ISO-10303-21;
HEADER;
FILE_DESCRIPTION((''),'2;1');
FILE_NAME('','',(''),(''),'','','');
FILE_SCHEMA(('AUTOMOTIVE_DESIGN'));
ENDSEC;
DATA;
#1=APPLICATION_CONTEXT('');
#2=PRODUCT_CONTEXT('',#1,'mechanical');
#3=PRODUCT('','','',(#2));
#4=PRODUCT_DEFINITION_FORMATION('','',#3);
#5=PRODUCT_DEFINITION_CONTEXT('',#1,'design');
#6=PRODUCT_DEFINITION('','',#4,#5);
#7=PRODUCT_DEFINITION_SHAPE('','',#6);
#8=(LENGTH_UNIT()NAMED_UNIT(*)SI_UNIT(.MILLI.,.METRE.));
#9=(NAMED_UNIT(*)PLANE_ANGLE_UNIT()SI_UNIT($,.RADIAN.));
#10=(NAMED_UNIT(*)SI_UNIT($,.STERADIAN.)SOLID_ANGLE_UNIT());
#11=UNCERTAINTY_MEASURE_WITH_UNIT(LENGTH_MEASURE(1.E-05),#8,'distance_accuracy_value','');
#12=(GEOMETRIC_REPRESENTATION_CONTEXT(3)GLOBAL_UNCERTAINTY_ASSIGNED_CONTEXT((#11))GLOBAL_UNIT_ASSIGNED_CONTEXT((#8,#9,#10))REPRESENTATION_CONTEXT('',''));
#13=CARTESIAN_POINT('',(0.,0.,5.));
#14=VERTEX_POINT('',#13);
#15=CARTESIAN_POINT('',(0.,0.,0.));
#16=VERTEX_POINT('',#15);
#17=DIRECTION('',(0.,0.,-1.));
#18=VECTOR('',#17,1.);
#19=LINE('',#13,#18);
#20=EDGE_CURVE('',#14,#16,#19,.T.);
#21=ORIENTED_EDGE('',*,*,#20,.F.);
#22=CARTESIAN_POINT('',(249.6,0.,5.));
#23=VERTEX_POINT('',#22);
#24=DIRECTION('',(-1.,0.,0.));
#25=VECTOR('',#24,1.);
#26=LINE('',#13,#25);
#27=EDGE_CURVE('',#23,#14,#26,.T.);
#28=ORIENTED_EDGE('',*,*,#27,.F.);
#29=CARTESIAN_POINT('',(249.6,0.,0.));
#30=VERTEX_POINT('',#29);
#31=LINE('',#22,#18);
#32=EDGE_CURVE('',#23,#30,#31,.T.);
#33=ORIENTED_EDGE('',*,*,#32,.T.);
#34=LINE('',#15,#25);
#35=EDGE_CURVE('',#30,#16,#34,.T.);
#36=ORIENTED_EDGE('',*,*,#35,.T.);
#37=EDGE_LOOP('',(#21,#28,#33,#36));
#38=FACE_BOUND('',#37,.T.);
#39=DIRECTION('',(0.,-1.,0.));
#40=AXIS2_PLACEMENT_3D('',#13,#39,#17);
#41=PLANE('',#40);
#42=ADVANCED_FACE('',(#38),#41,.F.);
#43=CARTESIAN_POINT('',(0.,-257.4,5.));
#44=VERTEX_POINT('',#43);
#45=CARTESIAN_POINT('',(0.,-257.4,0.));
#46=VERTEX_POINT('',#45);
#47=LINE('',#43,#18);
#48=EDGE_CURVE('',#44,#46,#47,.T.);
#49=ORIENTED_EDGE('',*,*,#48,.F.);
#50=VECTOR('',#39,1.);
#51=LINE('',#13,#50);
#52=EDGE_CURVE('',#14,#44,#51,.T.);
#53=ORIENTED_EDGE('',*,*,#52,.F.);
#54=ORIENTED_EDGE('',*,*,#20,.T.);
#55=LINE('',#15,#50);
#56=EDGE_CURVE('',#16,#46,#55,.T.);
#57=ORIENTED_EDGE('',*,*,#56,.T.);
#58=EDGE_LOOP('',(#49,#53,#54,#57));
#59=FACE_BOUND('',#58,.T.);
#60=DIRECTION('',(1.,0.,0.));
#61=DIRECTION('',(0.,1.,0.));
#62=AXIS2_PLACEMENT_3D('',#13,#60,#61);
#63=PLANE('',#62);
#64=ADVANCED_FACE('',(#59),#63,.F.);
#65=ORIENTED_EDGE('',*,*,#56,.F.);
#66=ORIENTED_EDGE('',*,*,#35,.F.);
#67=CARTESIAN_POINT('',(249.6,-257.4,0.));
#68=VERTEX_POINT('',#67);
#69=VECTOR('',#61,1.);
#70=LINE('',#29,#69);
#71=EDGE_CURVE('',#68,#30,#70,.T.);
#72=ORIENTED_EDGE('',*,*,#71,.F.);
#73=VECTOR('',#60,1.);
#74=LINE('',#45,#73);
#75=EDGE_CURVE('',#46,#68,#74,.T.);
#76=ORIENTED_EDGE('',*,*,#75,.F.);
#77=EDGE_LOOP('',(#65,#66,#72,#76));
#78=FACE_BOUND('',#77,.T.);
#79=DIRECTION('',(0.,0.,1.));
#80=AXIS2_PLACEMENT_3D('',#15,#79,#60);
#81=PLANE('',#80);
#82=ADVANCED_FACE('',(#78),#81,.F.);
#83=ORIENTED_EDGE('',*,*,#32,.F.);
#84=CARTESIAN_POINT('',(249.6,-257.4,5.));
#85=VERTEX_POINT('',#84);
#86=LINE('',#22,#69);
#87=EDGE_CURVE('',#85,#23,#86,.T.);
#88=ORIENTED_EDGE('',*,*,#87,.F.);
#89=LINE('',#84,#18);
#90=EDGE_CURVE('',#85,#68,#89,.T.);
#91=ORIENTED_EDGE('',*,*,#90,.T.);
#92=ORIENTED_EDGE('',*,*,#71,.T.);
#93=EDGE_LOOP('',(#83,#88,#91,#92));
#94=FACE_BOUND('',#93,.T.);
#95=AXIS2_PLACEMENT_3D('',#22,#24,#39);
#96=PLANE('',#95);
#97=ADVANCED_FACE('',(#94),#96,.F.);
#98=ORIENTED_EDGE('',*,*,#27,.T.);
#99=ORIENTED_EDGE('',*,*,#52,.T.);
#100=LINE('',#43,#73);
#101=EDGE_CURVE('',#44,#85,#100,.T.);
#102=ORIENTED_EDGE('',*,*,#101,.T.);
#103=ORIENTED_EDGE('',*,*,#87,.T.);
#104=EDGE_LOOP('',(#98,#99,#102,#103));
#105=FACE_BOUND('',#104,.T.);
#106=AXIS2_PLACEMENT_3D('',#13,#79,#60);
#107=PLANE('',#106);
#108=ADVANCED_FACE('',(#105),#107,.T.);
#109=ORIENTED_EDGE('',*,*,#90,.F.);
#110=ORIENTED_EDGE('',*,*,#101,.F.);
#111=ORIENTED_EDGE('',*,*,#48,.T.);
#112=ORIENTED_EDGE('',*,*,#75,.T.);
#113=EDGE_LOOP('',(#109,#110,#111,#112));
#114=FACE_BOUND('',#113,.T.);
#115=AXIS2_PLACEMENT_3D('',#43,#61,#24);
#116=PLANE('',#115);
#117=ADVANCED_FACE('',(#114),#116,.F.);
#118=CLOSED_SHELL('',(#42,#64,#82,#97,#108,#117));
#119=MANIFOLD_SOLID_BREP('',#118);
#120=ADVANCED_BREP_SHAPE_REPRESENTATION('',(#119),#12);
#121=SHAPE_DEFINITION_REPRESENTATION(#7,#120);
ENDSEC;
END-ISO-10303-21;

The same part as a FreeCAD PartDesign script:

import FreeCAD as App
import Part
import Sketcher
Q = App.Units.Quantity

doc = App.newDocument("Part")
params = doc.addObject("Spreadsheet::Sheet", "Params")
for row, (alias, value) in enumerate([
    ("sketch1_width", "249.6 mm"),
    ("sketch1_height", "257.4 mm"),
    ("pad1_length", "5 mm"),
], start=1):
    params.set(f"A{row}", alias)
    params.set(f"B{row}", "=" + value)
    params.setAlias(f"B{row}", alias)

body = doc.addObject("PartDesign::Body", "Body")

# Sketch on XY plane
sketch1 = doc.addObject("Sketcher::SketchObject", "Sketch")
body.addObject(sketch1)
sketch1.AttachmentSupport = (doc.XY_Plane, [""])
sketch1.MapMode = "FlatFace"
sketch1.addGeometry([
    Part.LineSegment(App.Vector(0, 0, 0), App.Vector(0, -257, 0)),
    Part.LineSegment(App.Vector(0, -257, 0), App.Vector(250, -257, 0)),
    Part.LineSegment(App.Vector(250, -257, 0), App.Vector(250, 0, 0)),
    Part.LineSegment(App.Vector(250, 0, 0), App.Vector(0, 0, 0)),
], False)
sketch1.addConstraint([
    Sketcher.Constraint("Coincident", 0, 2, 1, 1),
    Sketcher.Constraint("Coincident", 1, 2, 2, 1),
    Sketcher.Constraint("Coincident", 2, 2, 3, 1),
    Sketcher.Constraint("Coincident", 3, 2, 0, 1),
    Sketcher.Constraint("Vertical", 0),
    Sketcher.Constraint("Horizontal", 1),
    Sketcher.Constraint("Vertical", 2),
    Sketcher.Constraint("Horizontal", 3),
    Sketcher.Constraint("Coincident", 3, 2, -1, 1),
    Sketcher.Constraint("DistanceX", 1, 1, 1, 2, Q("249.6 mm")),
    Sketcher.Constraint("DistanceY", 0, 2, 0, 1, Q("257.4 mm")),
])
sketch1.setExpression("Constraints[9]", "Params.sketch1_width")
sketch1.setExpression("Constraints[10]", "Params.sketch1_height")
pad1 = doc.addObject("PartDesign::Pad", "Pad")
body.addObject(pad1)
pad1.Profile = sketch1
pad1.setExpression("Length", "Params.pad1_length")

doc.recompute()
